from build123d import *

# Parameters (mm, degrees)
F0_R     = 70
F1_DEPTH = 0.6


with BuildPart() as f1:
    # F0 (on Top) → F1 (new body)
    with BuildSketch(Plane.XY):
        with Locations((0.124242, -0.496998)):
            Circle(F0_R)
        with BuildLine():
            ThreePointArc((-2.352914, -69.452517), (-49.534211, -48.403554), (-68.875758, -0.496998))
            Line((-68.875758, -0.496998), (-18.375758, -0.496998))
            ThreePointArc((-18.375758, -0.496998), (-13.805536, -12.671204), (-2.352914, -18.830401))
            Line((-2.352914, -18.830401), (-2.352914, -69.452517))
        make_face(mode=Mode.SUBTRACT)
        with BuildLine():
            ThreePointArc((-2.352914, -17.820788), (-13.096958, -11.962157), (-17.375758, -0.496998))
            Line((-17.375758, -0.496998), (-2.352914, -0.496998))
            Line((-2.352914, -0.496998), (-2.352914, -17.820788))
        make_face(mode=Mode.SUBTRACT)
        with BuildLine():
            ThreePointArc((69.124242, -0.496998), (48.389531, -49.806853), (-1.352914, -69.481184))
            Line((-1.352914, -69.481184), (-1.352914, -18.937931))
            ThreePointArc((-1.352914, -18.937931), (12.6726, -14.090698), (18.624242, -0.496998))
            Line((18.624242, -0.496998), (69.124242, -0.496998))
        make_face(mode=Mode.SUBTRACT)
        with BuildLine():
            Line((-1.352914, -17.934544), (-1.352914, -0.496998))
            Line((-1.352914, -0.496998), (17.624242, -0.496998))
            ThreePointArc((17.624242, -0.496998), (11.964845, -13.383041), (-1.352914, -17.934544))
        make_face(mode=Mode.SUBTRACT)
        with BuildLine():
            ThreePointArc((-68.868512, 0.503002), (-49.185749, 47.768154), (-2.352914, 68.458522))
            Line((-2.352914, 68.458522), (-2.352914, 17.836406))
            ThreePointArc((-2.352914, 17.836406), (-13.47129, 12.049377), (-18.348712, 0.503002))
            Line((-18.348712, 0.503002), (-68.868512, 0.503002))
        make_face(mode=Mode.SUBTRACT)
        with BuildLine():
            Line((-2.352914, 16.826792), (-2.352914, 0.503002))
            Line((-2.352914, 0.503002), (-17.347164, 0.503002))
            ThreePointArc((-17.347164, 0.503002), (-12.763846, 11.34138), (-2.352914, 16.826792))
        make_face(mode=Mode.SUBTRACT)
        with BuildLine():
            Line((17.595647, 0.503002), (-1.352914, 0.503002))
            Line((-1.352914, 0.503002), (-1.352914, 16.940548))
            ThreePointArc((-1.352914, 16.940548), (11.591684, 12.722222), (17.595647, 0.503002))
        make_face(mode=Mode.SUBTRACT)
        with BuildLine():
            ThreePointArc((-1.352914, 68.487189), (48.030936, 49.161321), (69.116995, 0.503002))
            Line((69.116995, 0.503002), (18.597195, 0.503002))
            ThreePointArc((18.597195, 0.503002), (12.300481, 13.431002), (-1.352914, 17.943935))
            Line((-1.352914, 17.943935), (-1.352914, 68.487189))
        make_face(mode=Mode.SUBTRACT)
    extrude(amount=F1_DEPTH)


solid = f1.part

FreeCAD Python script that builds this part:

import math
import FreeCAD as App
import Part
import Sketcher

V = App.Vector
Q = App.Units.Quantity

doc = App.newDocument("Part")
body = doc.addObject("PartDesign::Body", "Body")

sketch1 = body.newObject("Sketcher::SketchObject", "Sketch")
sketch1.AttachmentSupport = (doc.getObject("XY_Plane"), [""])
sketch1.MapMode = "FlatFace"
sketch1.addGeometry([
    Part.Circle(V(0, 0, 0), V(0, 0, 1), 70),
    Part.LineSegment(V(-2, -19, 0), V(-2, -69, 0)),
    Part.ArcOfCircle(Part.Circle(V(0, 0, 0), V(0, 0, 1), 69), math.radians(180), math.radians(268)),
    Part.LineSegment(V(-69, 0, 0), V(-18, 0, 0)),
    Part.ArcOfCircle(Part.Circle(V(0, 0, 0), V(0, 0, 1), 18), math.radians(180), math.radians(262)),
    Part.LineSegment(V(-2, 0, 0), V(-2, -18, 0)),
    Part.ArcOfCircle(Part.Circle(V(0, 0, 0), V(0, 0, 1), 18), math.radians(-180), math.radians(-98)),
    Part.LineSegment(V(-17, 0, 0), V(-2, 0, 0)),
    Part.LineSegment(V(19, 0, 0), V(69, 0, 0)),
    Part.ArcOfCircle(Part.Circle(V(0, 0, 0), V(0, 0, 1), 69), math.radians(-91), math.radians(0)),
    Part.LineSegment(V(-1, -69, 0), V(-1, -19, 0)),
    Part.ArcOfCircle(Part.Circle(V(0, 0, 0), V(0, 0, 1), 19), math.radians(-95), math.radians(0)),
    Part.ArcOfCircle(Part.Circle(V(0, 0, 0), V(0, 0, 1), 18), math.radians(-95), math.radians(0)),
    Part.LineSegment(V(-1, -18, 0), V(-1, 0, 0)),
    Part.LineSegment(V(-1, 0, 0), V(18, 0, 0)),
    Part.ArcOfCircle(Part.Circle(V(0, 0, 0), V(0, 0, 1), 18), math.radians(98), math.radians(177)),
    Part.LineSegment(V(-2, 17, 0), V(-2, 1, 0)),
    Part.LineSegment(V(-2, 1, 0), V(-17, 1, 0)),
    Part.LineSegment(V(-18, 1, 0), V(-69, 1, 0)),
    Part.ArcOfCircle(Part.Circle(V(0, 0, 0), V(0, 0, 1), 69), math.radians(92), math.radians(179)),
    Part.LineSegment(V(-2, 68, 0), V(-2, 18, 0)),
    Part.ArcOfCircle(Part.Circle(V(0, 0, 0), V(0, 0, 1), 19), math.radians(98), math.radians(177)),
    Part.ArcOfCircle(Part.Circle(V(0, 0, 0), V(0, 0, 1), 17), math.radians(3), math.radians(95)),
    Part.LineSegment(V(18, 1, 0), V(-1, 1, 0)),
    Part.LineSegment(V(-1, 1, 0), V(-1, 17, 0)),
    Part.LineSegment(V(-1, 18, 0), V(-1, 68, 0)),
    Part.ArcOfCircle(Part.Circle(V(0, 0, 0), V(0, 0, 1), 69), math.radians(1), math.radians(91)),
    Part.LineSegment(V(69, 1, 0), V(19, 1, 0)),
    Part.ArcOfCircle(Part.Circle(V(0, 0, 0), V(0, 0, 1), 19), math.radians(3), math.radians(95)),
], False)
sketch1.addConstraint([
    Sketcher.Constraint("Coincident", 1, 2, 2, 2),
    Sketcher.Constraint("Coincident", 2, 1, 3, 1),
    Sketcher.Constraint("Coincident", 3, 2, 4, 1),
    Sketcher.Constraint("Coincident", 4, 2, 1, 1),
    Sketcher.Constraint("Coincident", 5, 2, 6, 2),
    Sketcher.Constraint("Coincident", 6, 1, 7, 1),
    Sketcher.Constraint("Coincident", 7, 2, 5, 1),
    Sketcher.Constraint("Coincident", 8, 2, 9, 2),
    Sketcher.Constraint("Coincident", 9, 1, 10, 1),
    Sketcher.Constraint("Coincident", 10, 2, 11, 1),
    Sketcher.Constraint("Coincident", 11, 2, 8, 1),
    Sketcher.Constraint("Coincident", 12, 1, 13, 1),
    Sketcher.Constraint("Coincident", 13, 2, 14, 1),
    Sketcher.Constraint("Coincident", 14, 2, 12, 2),
    Sketcher.Constraint("Coincident", 15, 1, 16, 1),
    Sketcher.Constraint("Coincident", 16, 2, 17, 1),
    Sketcher.Constraint("Coincident", 17, 2, 15, 2),
    Sketcher.Constraint("Coincident", 18, 2, 19, 2),
    Sketcher.Constraint("Coincident", 19, 1, 20, 1),
    Sketcher.Constraint("Coincident", 20, 2, 21, 1),
    Sketcher.Constraint("Coincident", 21, 2, 18, 1),
    Sketcher.Constraint("Coincident", 22, 1, 23, 1),
    Sketcher.Constraint("Coincident", 23, 2, 24, 1),
    Sketcher.Constraint("Coincident", 24, 2, 22, 2),
    Sketcher.Constraint("Coincident", 25, 2, 26, 2),
    Sketcher.Constraint("Coincident", 26, 1, 27, 1),
    Sketcher.Constraint("Coincident", 27, 2, 28, 1),
    Sketcher.Constraint("Coincident", 28, 2, 25, 1),
    Sketcher.Constraint("Vertical", 1),
    Sketcher.Constraint("Horizontal", 3),
    Sketcher.Constraint("Vertical", 5),
    Sketcher.Constraint("Horizontal", 7),
    Sketcher.Constraint("Horizontal", 8),
    Sketcher.Constraint("Vertical", 10),
    Sketcher.Constraint("Vertical", 13),
    Sketcher.Constraint("Horizontal", 14),
    Sketcher.Constraint("Vertical", 16),
    Sketcher.Constraint("Horizontal", 17),
    Sketcher.Constraint("Horizontal", 18),
    Sketcher.Constraint("Vertical", 20),
    Sketcher.Constraint("Horizontal", 23),
    Sketcher.Constraint("Vertical", 24),
    Sketcher.Constraint("Vertical", 25),
    Sketcher.Constraint("Horizontal", 27),
    Sketcher.Constraint("Coincident", 2, 3, 0, 3),
    Sketcher.Constraint("Coincident", 4, 3, 0, 3),
    Sketcher.Constraint("Coincident", 6, 3, 0, 3),
    Sketcher.Constraint("Coincident", 9, 3, 0, 3),
    Sketcher.Constraint("Coincident", 11, 3, 0, 3),
    Sketcher.Constraint("Coincident", 12, 3, 0, 3),
    Sketcher.Constraint("Coincident", 15, 3, 0, 3),
    Sketcher.Constraint("Coincident", 19, 3, 0, 3),
    Sketcher.Constraint("Coincident", 21, 3, 0, 3),
    Sketcher.Constraint("Coincident", 22, 3, 0, 3),
    Sketcher.Constraint("Coincident", 26, 3, 0, 3),
    Sketcher.Constraint("Coincident", 28, 3, 0, 3),
    Sketcher.Constraint("Equal", 6, 12),
    Sketcher.Constraint("Equal", 12, 15),
    Sketcher.Constraint("Equal", 9, 19),
    Sketcher.Constraint("Equal", 11, 21),
    Sketcher.Constraint("Equal", 15, 22),
    Sketcher.Constraint("Equal", 19, 26),
    Sketcher.Constraint("Equal", 21, 28),
    Sketcher.Constraint("Horizontal", 28, 3, 2, 1),
    Sketcher.Constraint("Horizontal", 3, 2, 6, 1),
    Sketcher.Constraint("Horizontal", 7, 2, 8, 2),
    Sketcher.Constraint("Horizontal", 11, 2, 13, 2),
    Sketcher.Constraint("Horizontal", 17, 2, 18, 2),
    Sketcher.Constraint("Horizontal", 21, 2, 22, 1),
    Sketcher.Constraint("Horizontal", 23, 2, 26, 1),
    Sketcher.Constraint("Vertical", 4, 2, 5, 2),
    Sketcher.Constraint("Vertical", 10, 2, 12, 1),
    Sketcher.Constraint("Vertical", 7, 2, 15, 1),
    Sketcher.Constraint("Vertical", 16, 2, 19, 1),
    Sketcher.Constraint("Vertical", 13, 2, 23, 2),
    Sketcher.Constraint("Vertical", 24, 2, 25, 2),
    Sketcher.Constraint("Equal", 3, 8),
    Sketcher.Constraint("Equal", 1, 20),
    Sketcher.Constraint("Diameter", 0, Q("140 mm")),
    Sketcher.Constraint("Radius", 9, Q("69 mm")),
    Sketcher.Constraint("Radius", 6, Q("17.5 mm")),
    Sketcher.Constraint("Radius", 11, Q("18.500002 mm")),
    Sketcher.Constraint("DistanceX", 1, 2, 9, 1, Q("1 mm")),
    Sketcher.Constraint("DistanceY", 7, 2, 16, 2, Q("1 mm")),
    Sketcher.Constraint("DistanceY", 2, 3, -1, 1, Q("0.497 mm")),
    Sketcher.Constraint("DistanceX", 17, 2, 17, 1, Q("14.99425 mm")),
    Sketcher.Constraint("DistanceX", -1, 1, 2, 3, Q("0.12424 mm")),
])
pad1 = body.newObject("PartDesign::Pad", "Pad")
pad1.Profile = sketch1
pad1.Length = 0.6

doc.recompute()
